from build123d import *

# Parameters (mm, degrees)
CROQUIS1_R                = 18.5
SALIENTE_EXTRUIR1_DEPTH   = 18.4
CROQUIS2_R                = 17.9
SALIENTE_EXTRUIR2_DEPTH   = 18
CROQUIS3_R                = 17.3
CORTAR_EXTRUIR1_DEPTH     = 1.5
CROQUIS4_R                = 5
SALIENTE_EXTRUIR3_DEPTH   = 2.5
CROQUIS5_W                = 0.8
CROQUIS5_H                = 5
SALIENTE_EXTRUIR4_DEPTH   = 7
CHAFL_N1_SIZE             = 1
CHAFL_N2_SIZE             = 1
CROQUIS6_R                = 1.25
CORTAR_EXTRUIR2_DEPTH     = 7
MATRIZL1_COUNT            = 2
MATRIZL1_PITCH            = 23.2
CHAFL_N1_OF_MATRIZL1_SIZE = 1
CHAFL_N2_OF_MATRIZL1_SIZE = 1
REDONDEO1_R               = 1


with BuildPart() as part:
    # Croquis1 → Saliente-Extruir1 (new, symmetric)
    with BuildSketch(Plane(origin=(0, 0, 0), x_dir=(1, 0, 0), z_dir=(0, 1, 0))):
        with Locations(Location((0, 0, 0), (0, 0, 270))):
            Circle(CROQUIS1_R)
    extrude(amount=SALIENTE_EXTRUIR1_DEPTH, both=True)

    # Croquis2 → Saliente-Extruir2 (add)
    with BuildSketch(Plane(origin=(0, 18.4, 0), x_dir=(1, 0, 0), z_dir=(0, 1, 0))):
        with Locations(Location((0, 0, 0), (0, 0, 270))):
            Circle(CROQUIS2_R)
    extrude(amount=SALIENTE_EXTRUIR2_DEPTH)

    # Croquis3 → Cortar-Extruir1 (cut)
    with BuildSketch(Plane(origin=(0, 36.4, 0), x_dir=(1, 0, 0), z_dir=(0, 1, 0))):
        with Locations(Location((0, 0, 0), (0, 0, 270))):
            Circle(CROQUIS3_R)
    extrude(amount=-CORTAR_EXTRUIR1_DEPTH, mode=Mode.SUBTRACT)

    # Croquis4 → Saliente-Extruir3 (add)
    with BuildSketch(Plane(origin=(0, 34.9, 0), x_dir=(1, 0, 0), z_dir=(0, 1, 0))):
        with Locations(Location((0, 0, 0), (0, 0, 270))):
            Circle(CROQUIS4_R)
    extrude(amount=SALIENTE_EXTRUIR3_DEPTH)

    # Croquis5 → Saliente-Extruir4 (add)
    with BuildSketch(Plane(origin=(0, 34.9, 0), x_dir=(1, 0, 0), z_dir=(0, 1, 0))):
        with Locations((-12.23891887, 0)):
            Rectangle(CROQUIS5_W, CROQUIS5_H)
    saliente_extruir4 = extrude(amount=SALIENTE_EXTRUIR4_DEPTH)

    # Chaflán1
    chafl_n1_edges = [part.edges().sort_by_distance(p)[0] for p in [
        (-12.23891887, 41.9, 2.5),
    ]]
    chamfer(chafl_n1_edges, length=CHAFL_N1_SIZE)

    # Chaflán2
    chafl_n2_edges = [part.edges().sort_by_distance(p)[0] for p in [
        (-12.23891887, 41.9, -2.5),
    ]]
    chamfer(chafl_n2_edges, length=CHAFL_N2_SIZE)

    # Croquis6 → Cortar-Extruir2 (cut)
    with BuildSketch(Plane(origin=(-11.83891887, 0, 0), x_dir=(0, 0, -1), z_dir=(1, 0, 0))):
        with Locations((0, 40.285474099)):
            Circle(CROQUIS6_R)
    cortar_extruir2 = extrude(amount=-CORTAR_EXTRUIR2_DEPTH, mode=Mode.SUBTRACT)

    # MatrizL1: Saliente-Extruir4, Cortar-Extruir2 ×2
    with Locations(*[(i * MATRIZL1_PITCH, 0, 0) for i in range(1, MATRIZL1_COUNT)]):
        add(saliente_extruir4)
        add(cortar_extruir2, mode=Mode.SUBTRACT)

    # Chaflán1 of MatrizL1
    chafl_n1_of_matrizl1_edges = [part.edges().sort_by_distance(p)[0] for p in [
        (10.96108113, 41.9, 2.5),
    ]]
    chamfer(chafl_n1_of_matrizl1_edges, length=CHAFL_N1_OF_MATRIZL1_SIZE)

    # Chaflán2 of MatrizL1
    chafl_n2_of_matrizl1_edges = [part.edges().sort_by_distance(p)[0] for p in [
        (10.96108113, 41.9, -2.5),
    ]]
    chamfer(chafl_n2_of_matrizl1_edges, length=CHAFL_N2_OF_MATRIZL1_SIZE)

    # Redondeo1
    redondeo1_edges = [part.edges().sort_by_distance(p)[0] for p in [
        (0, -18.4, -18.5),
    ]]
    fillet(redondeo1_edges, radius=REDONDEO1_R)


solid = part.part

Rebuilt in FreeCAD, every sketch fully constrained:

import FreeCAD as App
import Part
import Sketcher
from FreeCAD import Vector
Q = App.Units.Quantity


def edges_at(feature, points):
    """Names of the edges that pass closest to the given points."""
    edges = feature.Shape.Edges
    near = lambda p: min(range(len(edges)), key=lambda i: edges[i].distToShape(Part.Vertex(*p))[0])
    return sorted({f"Edge{near(p) + 1}" for p in points})

doc = App.newDocument("Part")
body = doc.addObject("PartDesign::Body", "Body")

# Sketch on XZ plane
sketch1 = body.newObject("Sketcher::SketchObject", "Sketch")
sketch1.AttachmentSupport = (doc.getObject("XZ_Plane"), [""])
sketch1.MapMode = "FlatFace"
sketch1.addGeometry(Part.Circle(Vector(0, 0, 0), Vector(0, 0, 1), 18), False)
sketch1.addConstraint([
    Sketcher.Constraint("Coincident", 0, 3, -1, 1),
    Sketcher.Constraint("Diameter", 0, Q("37 mm")),
])
pad1 = body.newObject("PartDesign::Pad", "Pad")
pad1.Profile = sketch1
pad1.Length = 36.8
pad1.Midplane = True

# Sketch on XZ plane
sketch2 = body.newObject("Sketcher::SketchObject", "Sketch001")
sketch2.AttachmentSupport = (doc.getObject("XZ_Plane"), [""])
sketch2.MapMode = "FlatFace"
sketch2.AttachmentOffset = App.Placement(Vector(0, 0, -18.4), App.Rotation())
sketch2.addGeometry(Part.Circle(Vector(0, 0, 0), Vector(0, 0, 1), 18), False)
sketch2.addConstraint([
    Sketcher.Constraint("Coincident", 0, 3, -1, 1),
    Sketcher.Constraint("Diameter", 0, Q("35.8 mm")),
])
pad2 = body.newObject("PartDesign::Pad", "Pad001")
pad2.Profile = sketch2
pad2.Length = 18
pad2.Reversed = True

# Sketch on XZ plane
sketch3 = body.newObject("Sketcher::SketchObject", "Sketch002")
sketch3.AttachmentSupport = (doc.getObject("XZ_Plane"), [""])
sketch3.MapMode = "FlatFace"
sketch3.AttachmentOffset = App.Placement(Vector(0, 0, -36.4), App.Rotation())
sketch3.addGeometry(Part.Circle(Vector(0, 0, 0), Vector(0, 0, 1), 17), False)
sketch3.addConstraint([
    Sketcher.Constraint("Coincident", 0, 3, -1, 1),
    Sketcher.Constraint("Diameter", 0, Q("34.6 mm")),
])
pocket1 = body.newObject("PartDesign::Pocket", "Pocket")
pocket1.Profile = sketch3
pocket1.Length = 1.5
pocket1.Reversed = True

# Sketch on XZ plane
sketch4 = body.newObject("Sketcher::SketchObject", "Sketch003")
sketch4.AttachmentSupport = (doc.getObject("XZ_Plane"), [""])
sketch4.MapMode = "FlatFace"
sketch4.AttachmentOffset = App.Placement(Vector(0, 0, -34.9), App.Rotation())
sketch4.addGeometry(Part.Circle(Vector(0, 0, 0), Vector(0, 0, 1), 5), False)
sketch4.addConstraint([
    Sketcher.Constraint("Coincident", 0, 3, -1, 1),
    Sketcher.Constraint("Diameter", 0, Q("10 mm")),
])
pad3 = body.newObject("PartDesign::Pad", "Pad002")
pad3.Profile = sketch4
pad3.Length = 2.5
pad3.Reversed = True

# Sketch on XZ plane
sketch5 = body.newObject("Sketcher::SketchObject", "Sketch004")
sketch5.AttachmentSupport = (doc.getObject("XZ_Plane"), [""])
sketch5.MapMode = "FlatFace"
sketch5.AttachmentOffset = App.Placement(Vector(0, 0, -34.9), App.Rotation())
sketch5.addGeometry([
    Part.LineSegment(Vector(-12.6, -2.5, 0), Vector(-12.6, 2.5, 0)),
    Part.LineSegment(Vector(-12.6, 2.5, 0), Vector(-11.8, 2.5, 0)),
    Part.LineSegment(Vector(-11.8, 2.5, 0), Vector(-11.8, -2.5, 0)),
    Part.LineSegment(Vector(-11.8, -2.5, 0), Vector(-12.6, -2.5, 0)),
], False)
sketch5.addConstraint([
    Sketcher.Constraint("Coincident", 0, 2, 1, 1),
    Sketcher.Constraint("Coincident", 1, 2, 2, 1),
    Sketcher.Constraint("Coincident", 2, 2, 3, 1),
    Sketcher.Constraint("Coincident", 3, 2, 0, 1),
    Sketcher.Constraint("Vertical", 0),
    Sketcher.Constraint("Horizontal", 1),
    Sketcher.Constraint("Vertical", 2),
    Sketcher.Constraint("Horizontal", 3),
    Sketcher.Constraint("DistanceY", 0, 1, 0, 2, Q("5 mm")),
    Sketcher.Constraint("DistanceX", 1, 1, 1, 2, Q("0.8 mm")),
    Sketcher.Constraint("DistanceY", -1, 1, 0, 2, Q("2.5 mm")),
    Sketcher.Constraint("DistanceX", 0, 2, -1, 1, Q("12.638919 mm")),
])
pad4 = body.newObject("PartDesign::Pad", "Pad003")
pad4.Profile = sketch5
pad4.Length = 7
pad4.Reversed = True
doc.recompute()

chamfer = body.newObject("PartDesign::Chamfer", "Chamfer")
chamfer.Base = (pad4, edges_at(pad4, [(-12.239, 41.9, 2.5)]))
chamfer.Size = 1
doc.recompute()

chamfer2 = body.newObject("PartDesign::Chamfer", "Chamfer001")
chamfer2.Base = (chamfer, edges_at(chamfer, [(-12.239, 41.9, -2.5)]))
chamfer2.Size = 1

# Sketch on YZ plane
sketch6 = body.newObject("Sketcher::SketchObject", "Sketch005")
sketch6.AttachmentSupport = (doc.getObject("YZ_Plane"), [""])
sketch6.MapMode = "FlatFace"
sketch6.AttachmentOffset = App.Placement(Vector(0, 0, -11.838919), App.Rotation())
sketch6.addGeometry(Part.Circle(Vector(40.3, 0, 0), Vector(0, 0, 1), 1.2), False)
sketch6.addConstraint([
    Sketcher.Constraint("PointOnObject", 0, 3, -1),
    Sketcher.Constraint("Diameter", 0, Q("2.5 mm")),
    Sketcher.Constraint("DistanceX", -1, 1, 0, 3, Q("40.285474 mm")),
])
pocket2 = body.newObject("PartDesign::Pocket", "Pocket001")
pocket2.Profile = sketch6
pocket2.Length = 7
doc.recompute()

linearpattern = body.newObject("PartDesign::LinearPattern", "LinearPattern")
linearpattern.Originals = [pad4, pocket2]
linearpattern.Direction = (doc.getObject("X_Axis"), [""])
linearpattern.Mode = "offset"
linearpattern.Offset = 23.2
linearpattern.Occurrences = 2
body.Tip = linearpattern
doc.recompute()

chamfer3 = body.newObject("PartDesign::Chamfer", "Chamfer002")
chamfer3.Base = (linearpattern, edges_at(linearpattern, [(10.961, 41.9, 2.5)]))
chamfer3.Size = 1
doc.recompute()

chamfer4 = body.newObject("PartDesign::Chamfer", "Chamfer003")
chamfer4.Base = (chamfer3, edges_at(chamfer3, [(10.961, 41.9, -2.5)]))
chamfer4.Size = 1
doc.recompute()

fillet = body.newObject("PartDesign::Fillet", "Fillet")
fillet.Base = (chamfer4, edges_at(chamfer4, [(0, -18.4, -18.5)]))
fillet.Radius = 1

doc.recompute()
